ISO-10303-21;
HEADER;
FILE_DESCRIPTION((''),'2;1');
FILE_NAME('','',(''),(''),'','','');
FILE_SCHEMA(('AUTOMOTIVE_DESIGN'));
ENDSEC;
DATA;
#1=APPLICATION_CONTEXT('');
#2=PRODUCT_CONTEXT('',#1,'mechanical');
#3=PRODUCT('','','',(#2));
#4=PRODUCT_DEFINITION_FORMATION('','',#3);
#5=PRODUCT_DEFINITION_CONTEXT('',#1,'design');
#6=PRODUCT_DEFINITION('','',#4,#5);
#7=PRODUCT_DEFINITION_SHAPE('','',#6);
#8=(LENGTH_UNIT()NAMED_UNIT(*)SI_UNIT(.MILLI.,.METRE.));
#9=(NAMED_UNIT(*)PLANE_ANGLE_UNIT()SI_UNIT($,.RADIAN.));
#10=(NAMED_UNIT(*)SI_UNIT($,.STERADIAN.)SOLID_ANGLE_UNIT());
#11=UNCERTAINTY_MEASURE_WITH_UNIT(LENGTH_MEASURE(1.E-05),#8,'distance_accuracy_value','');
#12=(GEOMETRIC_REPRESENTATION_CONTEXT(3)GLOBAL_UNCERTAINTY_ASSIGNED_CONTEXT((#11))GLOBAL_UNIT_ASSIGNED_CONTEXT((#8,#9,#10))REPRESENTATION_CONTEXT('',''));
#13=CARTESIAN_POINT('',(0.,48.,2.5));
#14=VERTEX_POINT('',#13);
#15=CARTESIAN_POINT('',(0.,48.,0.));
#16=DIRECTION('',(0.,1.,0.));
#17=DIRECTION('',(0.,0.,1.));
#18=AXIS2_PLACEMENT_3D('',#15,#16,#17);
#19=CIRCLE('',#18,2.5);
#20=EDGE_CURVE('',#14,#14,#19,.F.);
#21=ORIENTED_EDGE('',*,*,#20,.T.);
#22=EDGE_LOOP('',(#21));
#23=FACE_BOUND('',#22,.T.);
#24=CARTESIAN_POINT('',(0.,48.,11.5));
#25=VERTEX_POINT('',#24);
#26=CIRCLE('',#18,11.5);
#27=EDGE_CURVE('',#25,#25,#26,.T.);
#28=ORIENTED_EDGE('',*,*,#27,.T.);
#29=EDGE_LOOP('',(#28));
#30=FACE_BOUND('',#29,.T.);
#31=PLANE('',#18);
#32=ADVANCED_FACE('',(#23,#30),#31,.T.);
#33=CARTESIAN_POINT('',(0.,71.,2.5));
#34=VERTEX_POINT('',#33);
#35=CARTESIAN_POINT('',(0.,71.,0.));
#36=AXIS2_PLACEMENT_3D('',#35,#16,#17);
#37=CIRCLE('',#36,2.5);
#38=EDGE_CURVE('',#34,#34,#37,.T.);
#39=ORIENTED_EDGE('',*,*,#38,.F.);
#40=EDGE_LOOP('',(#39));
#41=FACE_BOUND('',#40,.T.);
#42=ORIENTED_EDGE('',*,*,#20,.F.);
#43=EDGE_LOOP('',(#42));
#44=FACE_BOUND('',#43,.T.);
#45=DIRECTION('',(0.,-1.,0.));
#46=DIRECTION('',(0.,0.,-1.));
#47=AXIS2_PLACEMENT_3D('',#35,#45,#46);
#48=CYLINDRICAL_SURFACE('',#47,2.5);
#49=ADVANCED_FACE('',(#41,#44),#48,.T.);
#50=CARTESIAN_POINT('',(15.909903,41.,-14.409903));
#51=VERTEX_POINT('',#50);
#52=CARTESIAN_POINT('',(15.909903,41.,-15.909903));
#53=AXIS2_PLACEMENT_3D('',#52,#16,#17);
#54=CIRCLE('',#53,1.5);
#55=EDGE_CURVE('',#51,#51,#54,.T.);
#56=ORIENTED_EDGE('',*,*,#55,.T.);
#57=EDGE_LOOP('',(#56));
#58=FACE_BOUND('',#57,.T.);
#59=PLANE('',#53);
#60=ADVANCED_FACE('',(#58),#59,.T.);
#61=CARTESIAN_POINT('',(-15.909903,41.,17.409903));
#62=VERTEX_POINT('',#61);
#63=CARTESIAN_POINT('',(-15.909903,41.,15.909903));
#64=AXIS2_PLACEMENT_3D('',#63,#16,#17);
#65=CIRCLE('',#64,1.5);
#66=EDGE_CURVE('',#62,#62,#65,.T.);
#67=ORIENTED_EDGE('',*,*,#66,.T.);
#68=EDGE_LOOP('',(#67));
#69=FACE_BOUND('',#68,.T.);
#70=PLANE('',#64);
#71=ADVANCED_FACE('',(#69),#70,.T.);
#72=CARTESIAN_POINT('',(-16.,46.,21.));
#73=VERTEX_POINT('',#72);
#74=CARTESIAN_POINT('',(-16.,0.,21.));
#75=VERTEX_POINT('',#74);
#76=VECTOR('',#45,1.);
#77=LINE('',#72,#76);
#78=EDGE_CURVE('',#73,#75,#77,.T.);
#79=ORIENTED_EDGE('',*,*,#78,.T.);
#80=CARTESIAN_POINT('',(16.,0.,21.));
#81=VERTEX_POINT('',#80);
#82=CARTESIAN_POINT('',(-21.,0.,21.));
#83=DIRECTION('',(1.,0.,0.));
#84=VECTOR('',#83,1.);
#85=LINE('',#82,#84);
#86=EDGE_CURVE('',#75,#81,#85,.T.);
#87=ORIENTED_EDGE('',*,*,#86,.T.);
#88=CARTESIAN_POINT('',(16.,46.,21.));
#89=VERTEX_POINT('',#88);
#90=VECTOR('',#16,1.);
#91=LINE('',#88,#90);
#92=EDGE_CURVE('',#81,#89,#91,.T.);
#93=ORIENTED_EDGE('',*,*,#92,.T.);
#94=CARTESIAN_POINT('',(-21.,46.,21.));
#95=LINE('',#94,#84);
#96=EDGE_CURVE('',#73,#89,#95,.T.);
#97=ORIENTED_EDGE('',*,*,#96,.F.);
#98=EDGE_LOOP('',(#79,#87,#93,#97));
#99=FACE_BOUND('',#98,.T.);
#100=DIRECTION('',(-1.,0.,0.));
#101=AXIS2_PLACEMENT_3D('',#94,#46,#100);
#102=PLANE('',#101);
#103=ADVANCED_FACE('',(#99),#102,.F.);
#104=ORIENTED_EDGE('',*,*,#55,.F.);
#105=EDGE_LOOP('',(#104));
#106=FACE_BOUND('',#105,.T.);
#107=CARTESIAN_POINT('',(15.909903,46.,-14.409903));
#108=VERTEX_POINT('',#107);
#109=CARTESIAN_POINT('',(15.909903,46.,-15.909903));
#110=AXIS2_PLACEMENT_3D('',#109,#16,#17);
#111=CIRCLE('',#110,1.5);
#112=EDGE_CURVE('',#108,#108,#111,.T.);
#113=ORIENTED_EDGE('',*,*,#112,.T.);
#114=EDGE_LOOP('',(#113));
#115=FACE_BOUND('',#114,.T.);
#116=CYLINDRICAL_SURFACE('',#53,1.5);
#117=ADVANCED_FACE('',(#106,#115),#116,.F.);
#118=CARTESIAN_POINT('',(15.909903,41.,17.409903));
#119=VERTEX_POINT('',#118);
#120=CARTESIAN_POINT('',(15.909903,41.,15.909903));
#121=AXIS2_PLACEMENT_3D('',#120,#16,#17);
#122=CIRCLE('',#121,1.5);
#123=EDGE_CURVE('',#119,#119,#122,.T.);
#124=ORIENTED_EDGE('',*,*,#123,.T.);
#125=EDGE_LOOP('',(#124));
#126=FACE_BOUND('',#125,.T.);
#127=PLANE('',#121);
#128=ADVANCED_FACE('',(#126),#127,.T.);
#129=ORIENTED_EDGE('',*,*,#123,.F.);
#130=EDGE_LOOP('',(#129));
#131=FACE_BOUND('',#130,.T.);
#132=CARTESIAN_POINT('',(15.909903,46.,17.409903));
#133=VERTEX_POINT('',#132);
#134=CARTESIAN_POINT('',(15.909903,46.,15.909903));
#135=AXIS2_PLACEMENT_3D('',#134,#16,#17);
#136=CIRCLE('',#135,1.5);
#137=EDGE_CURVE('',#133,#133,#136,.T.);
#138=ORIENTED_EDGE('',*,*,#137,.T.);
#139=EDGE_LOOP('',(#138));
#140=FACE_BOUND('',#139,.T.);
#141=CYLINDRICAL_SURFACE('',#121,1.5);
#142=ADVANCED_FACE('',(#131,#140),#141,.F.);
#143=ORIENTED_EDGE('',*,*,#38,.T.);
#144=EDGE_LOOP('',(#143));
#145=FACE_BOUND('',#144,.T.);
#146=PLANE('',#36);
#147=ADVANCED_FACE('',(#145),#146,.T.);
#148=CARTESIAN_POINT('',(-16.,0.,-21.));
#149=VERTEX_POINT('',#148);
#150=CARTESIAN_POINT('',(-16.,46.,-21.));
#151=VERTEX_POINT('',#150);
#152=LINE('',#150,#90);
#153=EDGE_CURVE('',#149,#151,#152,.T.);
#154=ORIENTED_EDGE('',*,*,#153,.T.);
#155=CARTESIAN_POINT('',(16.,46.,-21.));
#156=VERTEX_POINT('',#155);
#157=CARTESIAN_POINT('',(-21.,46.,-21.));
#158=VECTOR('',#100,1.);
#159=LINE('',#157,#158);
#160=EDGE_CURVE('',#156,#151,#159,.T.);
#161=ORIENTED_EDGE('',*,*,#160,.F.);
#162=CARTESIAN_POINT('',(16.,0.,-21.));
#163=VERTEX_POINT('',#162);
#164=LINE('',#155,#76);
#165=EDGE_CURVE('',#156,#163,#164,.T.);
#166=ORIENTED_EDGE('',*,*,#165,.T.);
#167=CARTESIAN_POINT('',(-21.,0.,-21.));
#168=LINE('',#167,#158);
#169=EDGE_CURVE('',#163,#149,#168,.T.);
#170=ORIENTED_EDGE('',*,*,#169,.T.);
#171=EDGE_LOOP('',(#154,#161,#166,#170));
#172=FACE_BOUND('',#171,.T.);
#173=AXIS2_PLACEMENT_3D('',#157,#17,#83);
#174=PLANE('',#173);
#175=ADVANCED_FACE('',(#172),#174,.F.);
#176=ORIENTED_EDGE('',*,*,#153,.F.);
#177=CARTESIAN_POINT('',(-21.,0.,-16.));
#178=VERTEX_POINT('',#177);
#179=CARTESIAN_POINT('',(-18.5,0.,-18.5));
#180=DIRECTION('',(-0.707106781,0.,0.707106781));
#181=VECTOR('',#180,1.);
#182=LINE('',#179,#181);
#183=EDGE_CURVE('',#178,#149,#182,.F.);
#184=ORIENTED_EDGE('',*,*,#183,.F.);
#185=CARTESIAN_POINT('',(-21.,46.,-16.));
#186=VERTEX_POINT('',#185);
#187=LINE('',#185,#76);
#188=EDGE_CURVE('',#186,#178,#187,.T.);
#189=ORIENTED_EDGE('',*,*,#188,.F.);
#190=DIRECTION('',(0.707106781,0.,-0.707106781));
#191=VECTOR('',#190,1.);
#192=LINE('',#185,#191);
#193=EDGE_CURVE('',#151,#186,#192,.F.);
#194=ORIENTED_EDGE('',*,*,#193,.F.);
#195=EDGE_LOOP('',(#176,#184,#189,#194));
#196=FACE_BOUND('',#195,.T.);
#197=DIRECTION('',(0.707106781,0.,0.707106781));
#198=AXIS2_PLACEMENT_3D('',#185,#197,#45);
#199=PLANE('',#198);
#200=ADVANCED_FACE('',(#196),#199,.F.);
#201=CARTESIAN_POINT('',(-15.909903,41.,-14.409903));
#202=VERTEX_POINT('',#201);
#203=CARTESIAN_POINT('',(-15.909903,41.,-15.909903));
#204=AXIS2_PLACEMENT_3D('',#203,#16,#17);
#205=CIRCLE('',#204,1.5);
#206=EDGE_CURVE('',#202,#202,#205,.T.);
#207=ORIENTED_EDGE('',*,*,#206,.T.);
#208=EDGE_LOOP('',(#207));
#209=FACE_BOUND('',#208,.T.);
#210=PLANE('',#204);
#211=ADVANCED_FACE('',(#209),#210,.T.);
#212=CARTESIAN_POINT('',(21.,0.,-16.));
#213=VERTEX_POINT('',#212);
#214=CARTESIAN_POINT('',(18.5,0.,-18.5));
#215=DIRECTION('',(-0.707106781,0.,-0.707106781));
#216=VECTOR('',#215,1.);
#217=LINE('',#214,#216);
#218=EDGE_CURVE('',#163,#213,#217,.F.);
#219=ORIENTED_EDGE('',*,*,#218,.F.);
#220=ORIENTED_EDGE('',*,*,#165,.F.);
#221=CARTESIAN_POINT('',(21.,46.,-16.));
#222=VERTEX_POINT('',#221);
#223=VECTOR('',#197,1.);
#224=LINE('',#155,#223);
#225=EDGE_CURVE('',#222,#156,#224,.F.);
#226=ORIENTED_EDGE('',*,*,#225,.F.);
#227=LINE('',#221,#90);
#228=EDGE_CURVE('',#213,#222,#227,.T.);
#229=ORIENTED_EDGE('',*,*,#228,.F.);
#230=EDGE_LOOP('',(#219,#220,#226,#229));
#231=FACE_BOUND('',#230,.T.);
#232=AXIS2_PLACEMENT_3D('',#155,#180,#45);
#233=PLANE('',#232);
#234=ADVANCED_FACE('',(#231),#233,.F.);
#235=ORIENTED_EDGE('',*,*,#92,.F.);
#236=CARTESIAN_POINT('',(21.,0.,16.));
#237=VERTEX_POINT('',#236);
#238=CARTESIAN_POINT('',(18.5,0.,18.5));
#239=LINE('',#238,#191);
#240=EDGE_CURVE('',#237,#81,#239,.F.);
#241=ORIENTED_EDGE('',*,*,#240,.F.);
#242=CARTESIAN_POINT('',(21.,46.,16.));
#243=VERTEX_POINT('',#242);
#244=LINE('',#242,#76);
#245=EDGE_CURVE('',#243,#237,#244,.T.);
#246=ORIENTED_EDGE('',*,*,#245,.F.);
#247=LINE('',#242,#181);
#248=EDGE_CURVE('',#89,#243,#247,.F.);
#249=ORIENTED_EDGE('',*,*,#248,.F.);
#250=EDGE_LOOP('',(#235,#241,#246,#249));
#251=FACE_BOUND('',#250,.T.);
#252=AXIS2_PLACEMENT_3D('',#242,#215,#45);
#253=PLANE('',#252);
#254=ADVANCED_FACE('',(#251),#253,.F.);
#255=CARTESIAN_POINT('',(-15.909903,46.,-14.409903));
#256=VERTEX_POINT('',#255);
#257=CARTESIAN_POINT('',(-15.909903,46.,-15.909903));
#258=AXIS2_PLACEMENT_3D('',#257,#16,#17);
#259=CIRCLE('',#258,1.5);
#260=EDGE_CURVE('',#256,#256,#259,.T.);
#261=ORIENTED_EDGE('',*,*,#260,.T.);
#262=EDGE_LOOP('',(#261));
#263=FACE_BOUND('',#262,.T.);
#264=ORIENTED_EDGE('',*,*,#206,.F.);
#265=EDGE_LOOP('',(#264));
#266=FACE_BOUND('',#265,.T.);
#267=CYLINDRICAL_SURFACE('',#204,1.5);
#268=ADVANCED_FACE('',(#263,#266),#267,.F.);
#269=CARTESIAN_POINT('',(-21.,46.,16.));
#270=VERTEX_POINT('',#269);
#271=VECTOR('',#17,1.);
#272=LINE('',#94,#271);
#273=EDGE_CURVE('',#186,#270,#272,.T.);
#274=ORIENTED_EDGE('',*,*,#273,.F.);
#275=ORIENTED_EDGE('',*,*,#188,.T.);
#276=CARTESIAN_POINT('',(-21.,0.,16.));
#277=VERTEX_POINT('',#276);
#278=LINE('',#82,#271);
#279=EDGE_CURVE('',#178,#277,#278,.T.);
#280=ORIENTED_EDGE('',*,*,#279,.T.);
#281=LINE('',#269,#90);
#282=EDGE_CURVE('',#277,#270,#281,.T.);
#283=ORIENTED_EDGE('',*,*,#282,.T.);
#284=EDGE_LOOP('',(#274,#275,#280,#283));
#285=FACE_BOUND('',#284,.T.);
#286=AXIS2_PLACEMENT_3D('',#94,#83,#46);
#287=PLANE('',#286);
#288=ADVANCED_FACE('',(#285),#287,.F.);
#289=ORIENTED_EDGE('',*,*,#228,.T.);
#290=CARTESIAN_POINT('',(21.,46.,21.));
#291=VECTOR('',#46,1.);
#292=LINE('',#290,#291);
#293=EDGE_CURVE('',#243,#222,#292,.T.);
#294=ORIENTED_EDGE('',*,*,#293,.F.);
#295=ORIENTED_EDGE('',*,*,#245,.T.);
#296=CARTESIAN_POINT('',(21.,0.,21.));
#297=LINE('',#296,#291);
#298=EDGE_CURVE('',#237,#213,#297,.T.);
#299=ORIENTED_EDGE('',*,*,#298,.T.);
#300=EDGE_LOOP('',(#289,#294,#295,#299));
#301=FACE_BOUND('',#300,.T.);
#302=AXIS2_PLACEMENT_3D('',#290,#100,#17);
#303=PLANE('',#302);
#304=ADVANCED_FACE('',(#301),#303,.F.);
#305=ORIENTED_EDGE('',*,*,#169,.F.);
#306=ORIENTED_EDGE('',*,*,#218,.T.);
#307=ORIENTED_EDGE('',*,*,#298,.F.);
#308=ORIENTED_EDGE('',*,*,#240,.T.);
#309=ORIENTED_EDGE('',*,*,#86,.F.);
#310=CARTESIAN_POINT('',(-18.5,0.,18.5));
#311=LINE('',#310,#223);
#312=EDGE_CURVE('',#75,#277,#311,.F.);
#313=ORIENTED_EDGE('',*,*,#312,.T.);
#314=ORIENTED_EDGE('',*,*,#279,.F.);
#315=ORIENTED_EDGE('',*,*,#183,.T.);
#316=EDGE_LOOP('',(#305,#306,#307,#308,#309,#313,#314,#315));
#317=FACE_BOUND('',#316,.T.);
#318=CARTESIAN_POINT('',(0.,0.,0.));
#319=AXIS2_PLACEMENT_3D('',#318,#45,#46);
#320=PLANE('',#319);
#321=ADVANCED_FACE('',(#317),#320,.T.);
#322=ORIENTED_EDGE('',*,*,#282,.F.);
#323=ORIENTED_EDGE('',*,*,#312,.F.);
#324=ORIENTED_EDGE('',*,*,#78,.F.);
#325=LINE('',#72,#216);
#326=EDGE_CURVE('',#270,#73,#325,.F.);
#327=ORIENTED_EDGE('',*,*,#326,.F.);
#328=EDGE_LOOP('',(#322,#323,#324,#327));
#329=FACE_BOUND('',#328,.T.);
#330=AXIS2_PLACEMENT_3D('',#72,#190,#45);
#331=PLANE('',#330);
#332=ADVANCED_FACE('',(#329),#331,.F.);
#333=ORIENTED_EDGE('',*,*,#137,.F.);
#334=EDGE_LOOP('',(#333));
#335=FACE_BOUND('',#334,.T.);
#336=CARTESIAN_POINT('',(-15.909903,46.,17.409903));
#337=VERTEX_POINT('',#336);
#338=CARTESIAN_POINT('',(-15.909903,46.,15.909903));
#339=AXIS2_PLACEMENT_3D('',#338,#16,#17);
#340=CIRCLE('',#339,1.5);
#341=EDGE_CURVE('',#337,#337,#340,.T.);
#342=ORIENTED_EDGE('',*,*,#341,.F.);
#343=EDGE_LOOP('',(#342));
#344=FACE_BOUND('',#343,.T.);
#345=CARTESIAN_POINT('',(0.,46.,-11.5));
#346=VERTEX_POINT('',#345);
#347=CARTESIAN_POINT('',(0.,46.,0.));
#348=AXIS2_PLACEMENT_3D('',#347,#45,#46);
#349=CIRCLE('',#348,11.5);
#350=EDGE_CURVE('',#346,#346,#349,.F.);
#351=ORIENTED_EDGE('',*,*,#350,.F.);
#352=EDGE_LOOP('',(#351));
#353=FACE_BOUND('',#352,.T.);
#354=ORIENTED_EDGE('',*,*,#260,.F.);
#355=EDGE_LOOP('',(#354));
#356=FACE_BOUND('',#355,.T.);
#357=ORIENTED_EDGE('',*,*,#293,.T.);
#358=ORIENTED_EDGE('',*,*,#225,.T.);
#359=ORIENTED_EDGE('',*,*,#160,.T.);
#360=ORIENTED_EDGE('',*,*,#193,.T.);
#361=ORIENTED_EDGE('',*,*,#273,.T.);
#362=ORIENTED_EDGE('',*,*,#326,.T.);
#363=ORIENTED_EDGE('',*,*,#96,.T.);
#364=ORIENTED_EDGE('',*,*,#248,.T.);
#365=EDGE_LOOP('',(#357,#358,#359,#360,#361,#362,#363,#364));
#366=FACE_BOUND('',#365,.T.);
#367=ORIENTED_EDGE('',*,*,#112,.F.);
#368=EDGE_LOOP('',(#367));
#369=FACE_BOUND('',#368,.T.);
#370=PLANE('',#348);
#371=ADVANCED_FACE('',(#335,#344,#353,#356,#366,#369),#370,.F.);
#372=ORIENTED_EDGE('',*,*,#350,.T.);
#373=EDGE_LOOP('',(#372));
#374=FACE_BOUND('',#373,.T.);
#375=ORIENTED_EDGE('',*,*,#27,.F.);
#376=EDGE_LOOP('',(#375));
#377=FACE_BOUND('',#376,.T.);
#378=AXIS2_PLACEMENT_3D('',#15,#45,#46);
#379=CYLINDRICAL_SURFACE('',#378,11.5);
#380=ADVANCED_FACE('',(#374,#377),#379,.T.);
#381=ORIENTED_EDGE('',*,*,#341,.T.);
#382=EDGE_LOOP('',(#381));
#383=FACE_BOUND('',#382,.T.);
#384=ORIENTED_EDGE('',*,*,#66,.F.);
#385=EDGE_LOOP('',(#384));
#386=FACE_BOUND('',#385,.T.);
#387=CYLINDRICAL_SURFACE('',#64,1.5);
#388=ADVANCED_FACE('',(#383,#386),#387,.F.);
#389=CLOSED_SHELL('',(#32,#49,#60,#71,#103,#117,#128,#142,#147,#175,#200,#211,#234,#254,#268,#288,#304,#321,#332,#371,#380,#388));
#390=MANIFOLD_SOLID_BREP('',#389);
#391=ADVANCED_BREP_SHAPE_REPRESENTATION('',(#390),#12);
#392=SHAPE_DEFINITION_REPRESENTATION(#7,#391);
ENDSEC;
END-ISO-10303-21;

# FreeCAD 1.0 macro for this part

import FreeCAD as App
import Part
import Sketcher
Q = App.Units.Quantity


def edges_at(feature, points):
    """Names of the edges that pass closest to the given points."""
    edges = feature.Shape.Edges
    near = lambda p: min(range(len(edges)), key=lambda i: edges[i].distToShape(Part.Vertex(*p))[0])
    return sorted({f"Edge{near(p) + 1}" for p in points})


def add_polygon(sketch, points):
    """Adds a closed chain of lines whose ends are joined by coincident constraints."""
    first, n = sketch.GeometryCount, len(points)
    for a, b in zip(points, points[1:] + points[:1]):
        sketch.addGeometry(Part.LineSegment(App.Vector(*a, 0), App.Vector(*b, 0)), False)
    for i in range(n):
        sketch.addConstraint(Sketcher.Constraint("Coincident", first + i, 2, first + (i + 1) % n, 1))

doc = App.newDocument("Part")
body = doc.addObject("PartDesign::Body", "Body")

# Sketch on XZ plane
sketch1 = body.newObject("Sketcher::SketchObject", "Sketch")
sketch1.AttachmentSupport = (doc.getObject("XZ_Plane"), [""])
sketch1.MapMode = "FlatFace"
add_polygon(sketch1, [(-21, -21), (-21, 21), (21, 21), (21, -21)])  # lines 0-3
sketch1.addConstraint(Sketcher.Constraint("Vertical", 0))
sketch1.addConstraint(Sketcher.Constraint("Horizontal", 1))
sketch1.addConstraint(Sketcher.Constraint("Vertical", 2))
sketch1.addConstraint(Sketcher.Constraint("Horizontal", 3))
sketch1.addConstraint(Sketcher.Constraint("Symmetric", 0, 2, 2, 2, -1, 1))
sketch1.addConstraint(Sketcher.Constraint("Equal", 3, 0))
sketch1.addConstraint(Sketcher.Constraint("DistanceX", 1, 1, 1, 2, Q("42 mm")))
pad1 = body.newObject("PartDesign::Pad", "Pad")
pad1.Profile = sketch1
pad1.Length = 46
pad1.Reversed = True
doc.recompute()

chamfer = body.newObject("PartDesign::Chamfer", "Chamfer")
chamfer.Base = (pad1, edges_at(pad1, [
    (21, 23, 21),
    (-21, 23, 21),
    (-21, 23, -21),
    (21, 23, -21),
]))
chamfer.Size = 5

# Sketch on XZ plane
sketch2 = body.newObject("Sketcher::SketchObject", "Sketch001")
sketch2.AttachmentSupport = (doc.getObject("XZ_Plane"), [""])
sketch2.MapMode = "FlatFace"
sketch2.AttachmentOffset = App.Placement(App.Vector(0, 0, -46), App.Rotation())
sketch2.addGeometry(Part.Circle(App.Vector(0, 0, 0), App.Vector(0, 0, 1), 11.5), False)
sketch2.addConstraint(Sketcher.Constraint("Coincident", 0, 3, -1, 1))
sketch2.addConstraint(Sketcher.Constraint("Diameter", 0, Q("23 mm")))
pad2 = body.newObject("PartDesign::Pad", "Pad001")
pad2.Profile = sketch2
pad2.Length = 2
pad2.Reversed = True

# Sketch on XZ plane
sketch3 = body.newObject("Sketcher::SketchObject", "Sketch002")
sketch3.AttachmentSupport = (doc.getObject("XZ_Plane"), [""])
sketch3.MapMode = "FlatFace"
sketch3.AttachmentOffset = App.Placement(App.Vector(0, 0, -46), App.Rotation())
sketch3.addGeometry(Part.Circle(App.Vector(0, 0, 0), App.Vector(0, 0, 1), 2.5), False)
sketch3.addConstraint(Sketcher.Constraint("Coincident", 0, 3, -1, 1))
sketch3.addConstraint(Sketcher.Constraint("Diameter", 0, Q("5 mm")))
pad3 = body.newObject("PartDesign::Pad", "Pad002")
pad3.Profile = sketch3
pad3.Length = 25
pad3.Reversed = True

# Sketch on XZ plane
sketch4 = body.newObject("Sketcher::SketchObject", "Sketch003")
sketch4.AttachmentSupport = (doc.getObject("XZ_Plane"), [""])
sketch4.MapMode = "FlatFace"
sketch4.AttachmentOffset = App.Placement(App.Vector(0, 0, -46), App.Rotation())
sketch4.addGeometry(Part.Circle(App.Vector(-15.909903, -15.909903, 0), App.Vector(0, 0, 1), 1.5), False)
sketch4.addGeometry(Part.Circle(App.Vector(15.909903, -15.909903, 0), App.Vector(0, 0, 1), 1.5), False)
sketch4.addGeometry(Part.Circle(App.Vector(15.909903, 15.909903, 0), App.Vector(0, 0, 1), 1.5), False)
sketch4.addGeometry(Part.Circle(App.Vector(-15.909903, 15.909903, 0), App.Vector(0, 0, 1), 1.5), False)
sketch4.addConstraint(Sketcher.Constraint("Equal", 0, 1))
sketch4.addConstraint(Sketcher.Constraint("Equal", 1, 2))
sketch4.addConstraint(Sketcher.Constraint("Equal", 2, 3))
sketch4.addConstraint(Sketcher.Constraint("Symmetric", 0, 3, 2, 3, -1, 1))
sketch4.addConstraint(Sketcher.Constraint("Symmetric", 1, 3, 3, 3, -1, 1))
sketch4.addConstraint(Sketcher.Constraint("Symmetric", 0, 3, 1, 3, -2))
sketch4.addConstraint(Sketcher.Constraint("Diameter", 0, Q("3 mm")))
sketch4.addConstraint(Sketcher.Constraint("DistanceX", 0, 3, -1, 1, Q("15.909903 mm")))
sketch4.addConstraint(Sketcher.Constraint("DistanceY", 0, 3, -1, 1, Q("15.909903 mm")))
pocket1 = body.newObject("PartDesign::Pocket", "Pocket")
pocket1.Profile = sketch4
pocket1.Length = 5
pocket1.Reversed = True

doc.recompute()
